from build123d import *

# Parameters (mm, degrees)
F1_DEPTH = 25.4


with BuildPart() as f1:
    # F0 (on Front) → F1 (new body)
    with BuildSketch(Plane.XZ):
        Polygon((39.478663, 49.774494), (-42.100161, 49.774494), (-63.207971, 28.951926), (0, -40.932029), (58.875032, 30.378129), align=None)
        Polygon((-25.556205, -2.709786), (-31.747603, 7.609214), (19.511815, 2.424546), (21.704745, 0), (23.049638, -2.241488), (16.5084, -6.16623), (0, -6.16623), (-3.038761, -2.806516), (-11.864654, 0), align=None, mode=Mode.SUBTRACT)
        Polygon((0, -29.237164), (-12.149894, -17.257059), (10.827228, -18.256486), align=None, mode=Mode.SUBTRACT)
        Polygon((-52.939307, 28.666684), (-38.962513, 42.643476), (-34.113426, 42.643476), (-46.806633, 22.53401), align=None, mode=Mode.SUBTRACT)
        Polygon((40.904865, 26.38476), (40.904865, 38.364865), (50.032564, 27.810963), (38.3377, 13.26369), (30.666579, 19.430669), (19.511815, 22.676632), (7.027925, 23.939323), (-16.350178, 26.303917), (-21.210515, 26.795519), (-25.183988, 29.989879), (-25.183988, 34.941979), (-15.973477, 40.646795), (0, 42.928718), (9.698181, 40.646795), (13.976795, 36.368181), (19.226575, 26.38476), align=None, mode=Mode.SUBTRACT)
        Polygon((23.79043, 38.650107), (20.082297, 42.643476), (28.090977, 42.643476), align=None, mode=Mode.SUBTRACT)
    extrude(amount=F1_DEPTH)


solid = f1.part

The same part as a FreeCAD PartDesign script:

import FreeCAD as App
import Part
import Sketcher

V = App.Vector
Q = App.Units.Quantity


def add_polygon(sketch, points):
    """Adds a closed chain of lines whose ends are joined by coincident constraints."""
    first, n = sketch.GeometryCount, len(points)
    for a, b in zip(points, points[1:] + points[:1]):
        sketch.addGeometry(Part.LineSegment(App.Vector(*a, 0), App.Vector(*b, 0)), False)
    for i in range(n):
        sketch.addConstraint(Sketcher.Constraint("Coincident", first + i, 2, first + (i + 1) % n, 1))

doc = App.newDocument("Part")
body = doc.addObject("PartDesign::Body", "Body")

sketch1 = doc.addObject("Sketcher::SketchObject", "Sketch")
body.addObject(sketch1)
sketch1.AttachmentSupport = (doc.XZ_Plane, [""])
sketch1.MapMode = "FlatFace"
add_polygon(sketch1, [(39.478663, 49.774494), (-42.100161, 49.774494), (-63.207971, 28.951926), (0, -40.932029), (58.875032, 30.378129)])
add_polygon(sketch1, [(-11.864654, 0), (-25.556205, -2.709786), (-31.747603, 7.609214), (19.511815, 2.424546), (21.704745, 0), (23.049638, -2.241488), (16.5084, -6.16623), (0, -6.16623), (-3.038761, -2.806516)])
add_polygon(sketch1, [(10.827228, -18.256486), (0, -29.237164), (-12.149894, -17.257059)])
add_polygon(sketch1, [(-46.806633, 22.53401), (-52.939307, 28.666684), (-38.962513, 42.643476), (-34.113426, 42.643476)])
add_polygon(sketch1, [(19.226575, 26.38476), (40.904865, 26.38476), (40.904865, 38.364865), (50.032564, 27.810963), (38.3377, 13.26369), (30.666579, 19.430669), (19.511815, 22.676632), (7.027925, 23.939323), (-16.350178, 26.303917), (-21.210515, 26.795519), (-25.183988, 29.989879), (-25.183988, 34.941979), (-15.973477, 40.646795), (0, 42.928718), (9.698181, 40.646795), (13.976795, 36.368181)])
add_polygon(sketch1, [(28.090977, 42.643476), (23.79043, 38.650107), (20.082297, 42.643476)])
sketch1.addConstraint([
    Sketcher.Constraint("Horizontal", 0),
    Sketcher.Constraint("Horizontal", 11),
    Sketcher.Constraint("Horizontal", 19),
    Sketcher.Constraint("Horizontal", 21),
    Sketcher.Constraint("Vertical", 22),
    Sketcher.Constraint("Vertical", 31),
    Sketcher.Constraint("Horizontal", 39),
    Sketcher.Constraint("PointOnObject", 2, 2, -2),
    Sketcher.Constraint("PointOnObject", 8, 2, -1),
    Sketcher.Constraint("PointOnObject", 11, 2, -2),
    Sketcher.Constraint("PointOnObject", 13, 2, -1),
    Sketcher.Constraint("PointOnObject", 14, 2, -2),
    Sketcher.Constraint("PointOnObject", 33, 2, -2),
    Sketcher.Constraint("Parallel", 2, 8),
    Sketcher.Constraint("Parallel", 6, 9),
    Sketcher.Constraint("Perpendicular", 9, 10),
    Sketcher.Constraint("Parallel", 8, 12),
    Sketcher.Constraint("Perpendicular", 14, 15),
    Sketcher.Constraint("Parallel", 4, 17),
    Sketcher.Constraint("Perpendicular", 17, 18),
    Sketcher.Constraint("Perpendicular", 24, 25),
    Sketcher.Constraint("Parallel", 7, 27),
    Sketcher.Constraint("Parallel", 27, 28),
    Sketcher.Constraint("Parallel", 28, 29),
    Sketcher.Constraint("Parallel", 25, 30),
    Sketcher.Constraint("Perpendicular", 18, 35),
    Sketcher.Constraint("Perpendicular", 37, 38),
    Sketcher.Constraint("Horizontal", 32, 2, 34, 2),
    Sketcher.Constraint("Horizontal", 19, 2, 38, 2),
    Sketcher.Constraint("Vertical", 7, 2, 26, 2),
    Sketcher.Constraint("Angle", 4, Q("135.000006 deg")),
    Sketcher.Constraint("DistanceX", 11, 2, 11, 1, Q("16.5084 mm")),
    Sketcher.Constraint("DistanceY", 31, 1, 31, 2, Q("4.9521 mm")),
    Sketcher.Constraint("Distance", 9, Q("2.614002 mm")),
    Sketcher.Constraint("Distance", 14, Q("15.4209 mm")),
    Sketcher.Constraint("DistanceX", 21, 1, 21, 2, Q("21.67829 mm")),
    Sketcher.Constraint("DistanceX", 39, 1, 39, 2, Q("8.00868 mm")),
    Sketcher.Constraint("DistanceX", -1, 1, 24, 2, Q("38.3377 mm")),
    Sketcher.Constraint("DistanceX", 6, 2, 5, 2, Q("6.191398 mm")),
    Sketcher.Constraint("DistanceY", 5, 2, 6, 2, Q("10.319 mm")),
    Sketcher.Constraint("DistanceY", 2, 2, 10, 2, Q("34.765799 mm")),
    Sketcher.Constraint("DistanceX", 21, 2, 23, 2, Q("9.127699 mm")),
    Sketcher.Constraint("DistanceX", 4, 2, 23, 2, Q("10.553901 mm")),
    Sketcher.Constraint("DistanceX", 18, 2, 29, 2, Q("17.751998 mm")),
    Sketcher.Constraint("DistanceX", 28, 2, 32, 2, Q("0.376701 mm")),
    Sketcher.Constraint("DistanceY", 28, 2, 33, 2, Q("16.624801 mm")),
    Sketcher.Constraint("DistanceY", 29, 2, 33, 2, Q("16.133199 mm")),
    Sketcher.Constraint("Distance", 1, Q("29.649941 mm")),
    Sketcher.Constraint("Distance", 5, Q("13.957131 mm")),
    Sketcher.Constraint("Distance", 10, Q("7.628328 mm")),
    Sketcher.Constraint("Distance", 15, Q("17.062908 mm")),
    Sketcher.Constraint("Distance", 17, Q("8.672911 mm")),
    Sketcher.Constraint("Distance", 18, Q("19.76617 mm")),
    Sketcher.Constraint("Distance", 24, Q("18.665289 mm")),
    Sketcher.Constraint("Distance", 25, Q("9.842648 mm")),
    Sketcher.Constraint("Distance", 33, Q("16.135648 mm")),
    Sketcher.Constraint("Distance", 36, Q("11.279578 mm")),
    Sketcher.Constraint("DistanceX", 0, 2, 0, 1, Q("81.578824 mm")),
    Sketcher.Constraint("DistanceX", 19, 1, 19, 2, Q("4.849087 mm")),
    Sketcher.Constraint("DistanceY", 22, 1, 22, 2, Q("11.980105 mm")),
    Sketcher.Constraint("DistanceX", 0, 2, -1, 1, Q("42.100161 mm")),
    Sketcher.Constraint("DistanceX", 1, 2, -1, 1, Q("63.207971 mm")),
    Sketcher.Constraint("DistanceX", -1, 1, 3, 2, Q("58.875032 mm")),
    Sketcher.Constraint("DistanceY", -1, 1, 3, 2, Q("30.378129 mm")),
    Sketcher.Constraint("DistanceX", 12, 2, -1, 1, Q("3.038761 mm")),
    Sketcher.Constraint("DistanceY", 15, 2, -1, 1, Q("17.257059 mm")),
    Sketcher.Constraint("DistanceY", -1, 1, 20, 2, Q("22.53401 mm")),
    Sketcher.Constraint("DistanceY", -1, 1, 21, 2, Q("26.38476 mm")),
    Sketcher.Constraint("DistanceY", -1, 1, 24, 2, Q("13.26369 mm")),
    Sketcher.Constraint("DistanceY", -1, 1, 29, 2, Q("26.795519 mm")),
    Sketcher.Constraint("DistanceY", -1, 1, 30, 2, Q("29.989879 mm")),
    Sketcher.Constraint("DistanceX", -1, 1, 34, 2, Q("9.698181 mm")),
    Sketcher.Constraint("DistanceY", -1, 1, 35, 2, Q("36.368181 mm")),
    Sketcher.Constraint("DistanceX", -1, 1, 37, 2, Q("23.79043 mm")),
    Sketcher.Constraint("DistanceY", 5, 2, 0, 2, Q("52.48428 mm")),
    Sketcher.Constraint("DistanceX", 5, 2, 7, 2, Q("45.06802 mm")),
    Sketcher.Constraint("DistanceY", 5, 2, 7, 2, Q("5.134332 mm")),
    Sketcher.Constraint("DistanceY", 14, 2, 12, 2, Q("26.430648 mm")),
    Sketcher.Constraint("DistanceX", 27, 2, 26, 2, Q("12.48389 mm")),
    Sketcher.Constraint("DistanceY", 22, 2, 37, 2, Q("0.285242 mm")),
])
pad1 = doc.addObject("PartDesign::Pad", "Pad")
body.addObject(pad1)
pad1.Profile = sketch1
pad1.Length = Q("1 in")

doc.recompute()
